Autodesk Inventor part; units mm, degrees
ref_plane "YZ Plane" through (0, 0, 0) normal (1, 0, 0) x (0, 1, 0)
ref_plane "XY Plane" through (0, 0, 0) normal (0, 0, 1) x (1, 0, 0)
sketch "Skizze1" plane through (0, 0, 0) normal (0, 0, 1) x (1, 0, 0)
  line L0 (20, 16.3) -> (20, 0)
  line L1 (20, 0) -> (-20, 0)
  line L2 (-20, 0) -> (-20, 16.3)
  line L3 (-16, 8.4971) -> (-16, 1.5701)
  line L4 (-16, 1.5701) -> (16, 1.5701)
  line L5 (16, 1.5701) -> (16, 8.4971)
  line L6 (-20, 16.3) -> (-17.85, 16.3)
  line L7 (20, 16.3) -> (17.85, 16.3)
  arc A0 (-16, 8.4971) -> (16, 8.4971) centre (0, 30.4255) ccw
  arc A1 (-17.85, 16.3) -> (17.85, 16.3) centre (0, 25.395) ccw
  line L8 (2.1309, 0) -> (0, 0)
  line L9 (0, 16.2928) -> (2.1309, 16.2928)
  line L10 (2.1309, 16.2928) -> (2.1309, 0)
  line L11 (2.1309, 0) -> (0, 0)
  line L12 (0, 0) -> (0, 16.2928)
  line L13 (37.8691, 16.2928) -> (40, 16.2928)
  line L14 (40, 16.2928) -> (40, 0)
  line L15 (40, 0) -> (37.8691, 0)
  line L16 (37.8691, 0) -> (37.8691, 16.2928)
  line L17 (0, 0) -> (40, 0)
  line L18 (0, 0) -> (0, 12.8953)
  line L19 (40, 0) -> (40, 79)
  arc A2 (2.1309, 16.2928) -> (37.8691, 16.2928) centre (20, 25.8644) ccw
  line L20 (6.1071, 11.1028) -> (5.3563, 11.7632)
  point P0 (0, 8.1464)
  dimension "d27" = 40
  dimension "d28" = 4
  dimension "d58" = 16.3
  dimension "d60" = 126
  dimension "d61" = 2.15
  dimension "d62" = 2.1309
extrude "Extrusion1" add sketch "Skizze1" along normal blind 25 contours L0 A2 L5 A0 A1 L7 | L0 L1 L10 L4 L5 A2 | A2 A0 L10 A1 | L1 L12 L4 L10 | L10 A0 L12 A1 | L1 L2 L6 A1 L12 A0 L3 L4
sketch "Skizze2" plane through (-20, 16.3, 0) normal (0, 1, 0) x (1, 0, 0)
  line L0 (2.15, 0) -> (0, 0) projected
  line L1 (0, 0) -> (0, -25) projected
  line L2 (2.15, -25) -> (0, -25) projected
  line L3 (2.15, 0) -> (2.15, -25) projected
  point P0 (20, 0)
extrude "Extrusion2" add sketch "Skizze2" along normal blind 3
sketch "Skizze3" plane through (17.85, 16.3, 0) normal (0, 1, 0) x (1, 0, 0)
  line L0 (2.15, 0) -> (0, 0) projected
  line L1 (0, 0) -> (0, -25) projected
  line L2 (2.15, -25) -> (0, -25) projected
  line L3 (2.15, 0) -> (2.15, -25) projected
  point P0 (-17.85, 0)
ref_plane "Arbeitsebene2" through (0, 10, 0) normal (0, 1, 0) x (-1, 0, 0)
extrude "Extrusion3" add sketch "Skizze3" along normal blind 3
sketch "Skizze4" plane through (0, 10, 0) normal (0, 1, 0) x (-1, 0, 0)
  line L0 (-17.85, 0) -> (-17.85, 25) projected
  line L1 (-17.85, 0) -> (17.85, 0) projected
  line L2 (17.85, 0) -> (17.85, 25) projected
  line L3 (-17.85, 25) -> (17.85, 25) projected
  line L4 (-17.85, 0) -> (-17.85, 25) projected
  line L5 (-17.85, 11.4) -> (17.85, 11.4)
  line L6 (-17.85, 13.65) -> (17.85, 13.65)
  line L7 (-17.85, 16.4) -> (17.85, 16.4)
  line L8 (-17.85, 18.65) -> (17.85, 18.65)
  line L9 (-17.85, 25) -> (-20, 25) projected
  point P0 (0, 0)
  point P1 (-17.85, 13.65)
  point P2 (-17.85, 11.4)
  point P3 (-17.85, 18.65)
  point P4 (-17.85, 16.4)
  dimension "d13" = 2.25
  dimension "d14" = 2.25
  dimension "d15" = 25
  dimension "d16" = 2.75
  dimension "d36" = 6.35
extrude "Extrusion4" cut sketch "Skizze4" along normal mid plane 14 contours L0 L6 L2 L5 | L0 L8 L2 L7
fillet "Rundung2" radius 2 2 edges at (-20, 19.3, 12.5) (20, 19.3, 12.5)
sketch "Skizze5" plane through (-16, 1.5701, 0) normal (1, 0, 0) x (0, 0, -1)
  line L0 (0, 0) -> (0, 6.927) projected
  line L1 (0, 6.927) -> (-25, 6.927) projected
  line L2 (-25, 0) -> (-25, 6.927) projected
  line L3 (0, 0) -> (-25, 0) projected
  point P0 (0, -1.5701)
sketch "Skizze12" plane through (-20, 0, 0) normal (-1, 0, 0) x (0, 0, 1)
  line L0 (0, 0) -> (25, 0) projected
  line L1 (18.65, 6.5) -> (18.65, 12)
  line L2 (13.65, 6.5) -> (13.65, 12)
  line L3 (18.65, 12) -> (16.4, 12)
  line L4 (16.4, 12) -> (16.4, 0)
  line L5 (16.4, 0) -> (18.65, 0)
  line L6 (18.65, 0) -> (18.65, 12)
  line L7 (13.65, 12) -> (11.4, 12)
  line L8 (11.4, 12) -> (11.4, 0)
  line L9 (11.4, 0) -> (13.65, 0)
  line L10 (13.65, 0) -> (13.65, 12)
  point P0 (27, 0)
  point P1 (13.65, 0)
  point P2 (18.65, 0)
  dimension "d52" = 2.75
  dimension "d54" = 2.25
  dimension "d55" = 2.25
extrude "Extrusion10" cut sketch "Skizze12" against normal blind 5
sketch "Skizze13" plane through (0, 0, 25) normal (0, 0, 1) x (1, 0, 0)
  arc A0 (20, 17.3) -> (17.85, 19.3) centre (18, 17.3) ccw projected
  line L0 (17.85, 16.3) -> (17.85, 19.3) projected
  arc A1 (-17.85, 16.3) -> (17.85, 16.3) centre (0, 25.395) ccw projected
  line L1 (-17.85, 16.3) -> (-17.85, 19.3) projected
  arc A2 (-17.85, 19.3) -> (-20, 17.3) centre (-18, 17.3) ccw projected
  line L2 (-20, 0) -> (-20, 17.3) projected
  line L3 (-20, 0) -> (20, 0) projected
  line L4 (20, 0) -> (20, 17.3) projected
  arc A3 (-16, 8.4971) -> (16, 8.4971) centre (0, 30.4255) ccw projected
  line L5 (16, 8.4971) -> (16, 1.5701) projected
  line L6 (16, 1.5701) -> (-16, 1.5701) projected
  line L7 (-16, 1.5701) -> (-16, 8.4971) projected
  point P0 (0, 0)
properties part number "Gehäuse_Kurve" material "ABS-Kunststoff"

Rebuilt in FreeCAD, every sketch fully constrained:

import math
import FreeCAD as App
import Part
import Sketcher
from FreeCAD import Vector


def edges_at(feature, points):
    """Names of the edges that pass closest to the given points."""
    edges = feature.Shape.Edges
    near = lambda p: min(range(len(edges)), key=lambda i: edges[i].distToShape(Part.Vertex(*p))[0])
    return sorted({f"Edge{near(p) + 1}" for p in points})

doc = App.newDocument("Part")
body = doc.addObject("PartDesign::Body", "Body")

sketch1 = body.newObject("Sketcher::SketchObject", "Sketch")
sketch1.AttachmentSupport = (doc.getObject("XY_Plane"), [""])
sketch1.MapMode = "FlatFace"
sketch1.addGeometry([
    Part.LineSegment(Vector(20, 16.3, 0), Vector(17.9, 16.3, 0)),
    Part.ArcOfCircle(Part.Circle(Vector(0, 25.4, 0), Vector(0, 0, 1), 20), math.radians(-153), math.radians(-27)),
    Part.LineSegment(Vector(-17.9, 16.3, 0), Vector(-20, 16.3, 0)),
    Part.LineSegment(Vector(-20, 16.3, 0), Vector(-20, 0, 0)),
    Part.LineSegment(Vector(-20, 0, 0), Vector(20, 0, 0)),
    Part.LineSegment(Vector(20, 0, 0), Vector(20, 16.3, 0)),
    Part.LineSegment(Vector(16, 8.5, 0), Vector(16, 1.6, 0)),
    Part.LineSegment(Vector(16, 1.6, 0), Vector(-16, 1.6, 0)),
    Part.LineSegment(Vector(-16, 1.6, 0), Vector(-16, 8.5, 0)),
    Part.ArcOfCircle(Part.Circle(Vector(0, 30.4, 0), Vector(0, 0, 1), 27.1), math.radians(-126), math.radians(-54)),
], False)
sketch1.addConstraint([
    Sketcher.Constraint("Coincident", 0, 2, 1, 2),
    Sketcher.Constraint("Coincident", 1, 1, 2, 1),
    Sketcher.Constraint("Coincident", 2, 2, 3, 1),
    Sketcher.Constraint("Coincident", 3, 2, 4, 1),
    Sketcher.Constraint("Coincident", 4, 2, 5, 1),
    Sketcher.Constraint("Coincident", 5, 2, 0, 1),
    Sketcher.Constraint("Coincident", 6, 2, 7, 1),
    Sketcher.Constraint("Coincident", 7, 2, 8, 1),
    Sketcher.Constraint("Coincident", 8, 2, 9, 1),
    Sketcher.Constraint("Coincident", 9, 2, 6, 1),
    Sketcher.Constraint("Horizontal", 0),
    Sketcher.Constraint("Horizontal", 2),
    Sketcher.Constraint("Vertical", 3),
    Sketcher.Constraint("Horizontal", 4),
    Sketcher.Constraint("Vertical", 5),
    Sketcher.Constraint("Vertical", 6),
    Sketcher.Constraint("Horizontal", 7),
    Sketcher.Constraint("Vertical", 8),
    Sketcher.Constraint("Symmetric", 3, 2, 4, 2, -1, 1),
    Sketcher.Constraint("Symmetric", 0, 2, 1, 1, -2),
    Sketcher.Constraint("Symmetric", 8, 2, 9, 2, -2),
    Sketcher.Constraint("DistanceX", 4, 1, 4, 2, 40.0),
    Sketcher.Constraint("DistanceY", 3, 2, 3, 1, 16.3),
    Sketcher.Constraint("DistanceX", 6, 2, 4, 2, 4.0),
    Sketcher.Constraint("DistanceX", 0, 2, 0, 1, 2.15),
    Sketcher.Constraint("Radius", 9, 27.145),
    Sketcher.Constraint("Radius", 1, 20.0335),
    Sketcher.Constraint("DistanceY", 6, 2, 6, 1, 6.927),
    Sketcher.Constraint("DistanceY", -1, 1, 6, 2, 1.57),
])
pad1 = body.newObject("PartDesign::Pad", "Pad")
pad1.Profile = sketch1
pad1.Length = 25

sketch2 = body.newObject("Sketcher::SketchObject", "Sketch001")
sketch2.AttachmentSupport = (doc.getObject("XZ_Plane"), [""])
sketch2.MapMode = "FlatFace"
sketch2.AttachmentOffset = App.Placement(Vector(0, 0, -16.3), App.Rotation())
sketch2.addGeometry([
    Part.LineSegment(Vector(-17.9, 25, 0), Vector(-17.9, 0, 0)),
    Part.LineSegment(Vector(-17.9, 0, 0), Vector(-20, 0, 0)),
    Part.LineSegment(Vector(-20, 0, 0), Vector(-20, 25, 0)),
    Part.LineSegment(Vector(-20, 25, 0), Vector(-17.9, 25, 0)),
], False)
sketch2.addConstraint([
    Sketcher.Constraint("Coincident", 0, 2, 1, 1),
    Sketcher.Constraint("Coincident", 1, 2, 2, 1),
    Sketcher.Constraint("Coincident", 2, 2, 3, 1),
    Sketcher.Constraint("Coincident", 3, 2, 0, 1),
    Sketcher.Constraint("Vertical", 0),
    Sketcher.Constraint("Horizontal", 1),
    Sketcher.Constraint("Vertical", 2),
    Sketcher.Constraint("Horizontal", 3),
    Sketcher.Constraint("PointOnObject", 0, 2, -1),
    Sketcher.Constraint("DistanceY", 0, 2, 0, 1, 25.0),
    Sketcher.Constraint("DistanceX", 1, 2, -1, 1, 20.0),
    Sketcher.Constraint("DistanceX", 1, 2, 1, 1, 2.15),
])
pad2 = body.newObject("PartDesign::Pad", "Pad001")
pad2.Profile = sketch2
pad2.Length = 3
pad2.Reversed = True

sketch3 = body.newObject("Sketcher::SketchObject", "Sketch002")
sketch3.AttachmentSupport = (doc.getObject("XZ_Plane"), [""])
sketch3.MapMode = "FlatFace"
sketch3.AttachmentOffset = App.Placement(Vector(0, 0, -16.3), App.Rotation())
sketch3.addGeometry([
    Part.LineSegment(Vector(20, 25, 0), Vector(20, 0, 0)),
    Part.LineSegment(Vector(20, 0, 0), Vector(17.9, 0, 0)),
    Part.LineSegment(Vector(17.9, 0, 0), Vector(17.9, 25, 0)),
    Part.LineSegment(Vector(17.9, 25, 0), Vector(20, 25, 0)),
], False)
sketch3.addConstraint([
    Sketcher.Constraint("Coincident", 0, 2, 1, 1),
    Sketcher.Constraint("Coincident", 1, 2, 2, 1),
    Sketcher.Constraint("Coincident", 2, 2, 3, 1),
    Sketcher.Constraint("Coincident", 3, 2, 0, 1),
    Sketcher.Constraint("Vertical", 0),
    Sketcher.Constraint("Horizontal", 1),
    Sketcher.Constraint("Vertical", 2),
    Sketcher.Constraint("Horizontal", 3),
    Sketcher.Constraint("PointOnObject", 0, 2, -1),
    Sketcher.Constraint("DistanceY", 0, 2, 0, 1, 25.0),
    Sketcher.Constraint("DistanceX", -1, 1, 0, 2, 20.0),
    Sketcher.Constraint("DistanceX", 1, 2, 1, 1, 2.15),
])
pad3 = body.newObject("PartDesign::Pad", "Pad002")
pad3.Profile = sketch3
pad3.Length = 3
pad3.Reversed = True

sketch4 = body.newObject("Sketcher::SketchObject", "Sketch003")
sketch4.AttachmentSupport = (doc.getObject("XZ_Plane"), [""])
sketch4.MapMode = "FlatFace"
sketch4.AttachmentOffset = App.Placement(Vector(0, 0, -10), App.Rotation())
sketch4.addGeometry([
    Part.LineSegment(Vector(17.9, 13.7, 0), Vector(17.9, 11.4, 0)),
    Part.LineSegment(Vector(17.9, 11.4, 0), Vector(-17.9, 11.4, 0)),
    Part.LineSegment(Vector(-17.9, 11.4, 0), Vector(-17.9, 13.7, 0)),
    Part.LineSegment(Vector(-17.9, 13.7, 0), Vector(17.9, 13.7, 0)),
    Part.LineSegment(Vector(17.9, 18.6, 0), Vector(17.9, 16.4, 0)),
    Part.LineSegment(Vector(17.9, 16.4, 0), Vector(-17.9, 16.4, 0)),
    Part.LineSegment(Vector(-17.9, 16.4, 0), Vector(-17.9, 18.6, 0)),
    Part.LineSegment(Vector(-17.9, 18.6, 0), Vector(17.9, 18.6, 0)),
], False)
sketch4.addConstraint([
    Sketcher.Constraint("Coincident", 0, 2, 1, 1),
    Sketcher.Constraint("Coincident", 1, 2, 2, 1),
    Sketcher.Constraint("Coincident", 2, 2, 3, 1),
    Sketcher.Constraint("Coincident", 3, 2, 0, 1),
    Sketcher.Constraint("Coincident", 4, 2, 5, 1),
    Sketcher.Constraint("Coincident", 5, 2, 6, 1),
    Sketcher.Constraint("Coincident", 6, 2, 7, 1),
    Sketcher.Constraint("Coincident", 7, 2, 4, 1),
    Sketcher.Constraint("Vertical", 0),
    Sketcher.Constraint("Horizontal", 1),
    Sketcher.Constraint("Vertical", 2),
    Sketcher.Constraint("Horizontal", 3),
    Sketcher.Constraint("Vertical", 4),
    Sketcher.Constraint("Horizontal", 5),
    Sketcher.Constraint("Vertical", 6),
    Sketcher.Constraint("Horizontal", 7),
    Sketcher.Constraint("Vertical", 3, 2, 4, 2),
    Sketcher.Constraint("Vertical", 2, 2, 5, 2),
    Sketcher.Constraint("Equal", 2, 4),
    Sketcher.Constraint("DistanceY", 0, 2, 0, 1, 2.25),
    Sketcher.Constraint("DistanceY", 3, 2, 4, 2, 2.75),
    Sketcher.Constraint("DistanceX", 1, 2, 1, 1, 35.7),
    Sketcher.Constraint("DistanceY", -1, 1, 0, 2, 11.4),
    Sketcher.Constraint("DistanceX", -1, 1, 0, 2, 17.85),
])
pocket1 = body.newObject("PartDesign::Pocket", "Pocket")
pocket1.Profile = sketch4
pocket1.Length = 14
pocket1.Midplane = True
doc.recompute()

fillet = body.newObject("PartDesign::Fillet", "Fillet")
fillet.Base = (pocket1, edges_at(pocket1, [(-20, 19.3, 12.5), (20, 19.3, 12.5)]))
fillet.Radius = 2

sketch5 = body.newObject("Sketcher::SketchObject", "Sketch004")
sketch5.AttachmentSupport = (doc.getObject("YZ_Plane"), [""])
sketch5.MapMode = "FlatFace"
sketch5.AttachmentOffset = App.Placement(Vector(0, 0, -20), App.Rotation())
sketch5.addGeometry([
    Part.LineSegment(Vector(12, 11.4, 0), Vector(0, 11.4, 0)),
    Part.LineSegment(Vector(0, 11.4, 0), Vector(0, 13.7, 0)),
    Part.LineSegment(Vector(0, 13.7, 0), Vector(12, 13.7, 0)),
    Part.LineSegment(Vector(12, 13.7, 0), Vector(12, 11.4, 0)),
    Part.LineSegment(Vector(12, 16.4, 0), Vector(0, 16.4, 0)),
    Part.LineSegment(Vector(0, 16.4, 0), Vector(0, 18.6, 0)),
    Part.LineSegment(Vector(0, 18.6, 0), Vector(12, 18.6, 0)),
    Part.LineSegment(Vector(12, 18.6, 0), Vector(12, 16.4, 0)),
], False)
sketch5.addConstraint([
    Sketcher.Constraint("Coincident", 0, 2, 1, 1),
    Sketcher.Constraint("Coincident", 1, 2, 2, 1),
    Sketcher.Constraint("Coincident", 2, 2, 3, 1),
    Sketcher.Constraint("Coincident", 3, 2, 0, 1),
    Sketcher.Constraint("Coincident", 4, 2, 5, 1),
    Sketcher.Constraint("Coincident", 5, 2, 6, 1),
    Sketcher.Constraint("Coincident", 6, 2, 7, 1),
    Sketcher.Constraint("Coincident", 7, 2, 4, 1),
    Sketcher.Constraint("Horizontal", 0),
    Sketcher.Constraint("Vertical", 1),
    Sketcher.Constraint("Horizontal", 2),
    Sketcher.Constraint("Vertical", 3),
    Sketcher.Constraint("Horizontal", 4),
    Sketcher.Constraint("Vertical", 5),
    Sketcher.Constraint("Horizontal", 6),
    Sketcher.Constraint("Vertical", 7),
    Sketcher.Constraint("PointOnObject", 0, 2, -2),
    Sketcher.Constraint("PointOnObject", 4, 2, -2),
    Sketcher.Constraint("Vertical", 3, 2, 6, 2),
    Sketcher.Constraint("Equal", 3, 5),
    Sketcher.Constraint("DistanceY", 1, 1, 1, 2, 2.25),
    Sketcher.Constraint("DistanceX", 0, 2, 0, 1, 12.0),
    Sketcher.Constraint("DistanceY", 1, 2, 4, 2, 2.75),
    Sketcher.Constraint("DistanceY", -1, 1, 0, 2, 11.4),
])
pocket2 = body.newObject("PartDesign::Pocket", "Pocket001")
pocket2.Profile = sketch5
pocket2.Length = 5
pocket2.Reversed = True

doc.recompute()
